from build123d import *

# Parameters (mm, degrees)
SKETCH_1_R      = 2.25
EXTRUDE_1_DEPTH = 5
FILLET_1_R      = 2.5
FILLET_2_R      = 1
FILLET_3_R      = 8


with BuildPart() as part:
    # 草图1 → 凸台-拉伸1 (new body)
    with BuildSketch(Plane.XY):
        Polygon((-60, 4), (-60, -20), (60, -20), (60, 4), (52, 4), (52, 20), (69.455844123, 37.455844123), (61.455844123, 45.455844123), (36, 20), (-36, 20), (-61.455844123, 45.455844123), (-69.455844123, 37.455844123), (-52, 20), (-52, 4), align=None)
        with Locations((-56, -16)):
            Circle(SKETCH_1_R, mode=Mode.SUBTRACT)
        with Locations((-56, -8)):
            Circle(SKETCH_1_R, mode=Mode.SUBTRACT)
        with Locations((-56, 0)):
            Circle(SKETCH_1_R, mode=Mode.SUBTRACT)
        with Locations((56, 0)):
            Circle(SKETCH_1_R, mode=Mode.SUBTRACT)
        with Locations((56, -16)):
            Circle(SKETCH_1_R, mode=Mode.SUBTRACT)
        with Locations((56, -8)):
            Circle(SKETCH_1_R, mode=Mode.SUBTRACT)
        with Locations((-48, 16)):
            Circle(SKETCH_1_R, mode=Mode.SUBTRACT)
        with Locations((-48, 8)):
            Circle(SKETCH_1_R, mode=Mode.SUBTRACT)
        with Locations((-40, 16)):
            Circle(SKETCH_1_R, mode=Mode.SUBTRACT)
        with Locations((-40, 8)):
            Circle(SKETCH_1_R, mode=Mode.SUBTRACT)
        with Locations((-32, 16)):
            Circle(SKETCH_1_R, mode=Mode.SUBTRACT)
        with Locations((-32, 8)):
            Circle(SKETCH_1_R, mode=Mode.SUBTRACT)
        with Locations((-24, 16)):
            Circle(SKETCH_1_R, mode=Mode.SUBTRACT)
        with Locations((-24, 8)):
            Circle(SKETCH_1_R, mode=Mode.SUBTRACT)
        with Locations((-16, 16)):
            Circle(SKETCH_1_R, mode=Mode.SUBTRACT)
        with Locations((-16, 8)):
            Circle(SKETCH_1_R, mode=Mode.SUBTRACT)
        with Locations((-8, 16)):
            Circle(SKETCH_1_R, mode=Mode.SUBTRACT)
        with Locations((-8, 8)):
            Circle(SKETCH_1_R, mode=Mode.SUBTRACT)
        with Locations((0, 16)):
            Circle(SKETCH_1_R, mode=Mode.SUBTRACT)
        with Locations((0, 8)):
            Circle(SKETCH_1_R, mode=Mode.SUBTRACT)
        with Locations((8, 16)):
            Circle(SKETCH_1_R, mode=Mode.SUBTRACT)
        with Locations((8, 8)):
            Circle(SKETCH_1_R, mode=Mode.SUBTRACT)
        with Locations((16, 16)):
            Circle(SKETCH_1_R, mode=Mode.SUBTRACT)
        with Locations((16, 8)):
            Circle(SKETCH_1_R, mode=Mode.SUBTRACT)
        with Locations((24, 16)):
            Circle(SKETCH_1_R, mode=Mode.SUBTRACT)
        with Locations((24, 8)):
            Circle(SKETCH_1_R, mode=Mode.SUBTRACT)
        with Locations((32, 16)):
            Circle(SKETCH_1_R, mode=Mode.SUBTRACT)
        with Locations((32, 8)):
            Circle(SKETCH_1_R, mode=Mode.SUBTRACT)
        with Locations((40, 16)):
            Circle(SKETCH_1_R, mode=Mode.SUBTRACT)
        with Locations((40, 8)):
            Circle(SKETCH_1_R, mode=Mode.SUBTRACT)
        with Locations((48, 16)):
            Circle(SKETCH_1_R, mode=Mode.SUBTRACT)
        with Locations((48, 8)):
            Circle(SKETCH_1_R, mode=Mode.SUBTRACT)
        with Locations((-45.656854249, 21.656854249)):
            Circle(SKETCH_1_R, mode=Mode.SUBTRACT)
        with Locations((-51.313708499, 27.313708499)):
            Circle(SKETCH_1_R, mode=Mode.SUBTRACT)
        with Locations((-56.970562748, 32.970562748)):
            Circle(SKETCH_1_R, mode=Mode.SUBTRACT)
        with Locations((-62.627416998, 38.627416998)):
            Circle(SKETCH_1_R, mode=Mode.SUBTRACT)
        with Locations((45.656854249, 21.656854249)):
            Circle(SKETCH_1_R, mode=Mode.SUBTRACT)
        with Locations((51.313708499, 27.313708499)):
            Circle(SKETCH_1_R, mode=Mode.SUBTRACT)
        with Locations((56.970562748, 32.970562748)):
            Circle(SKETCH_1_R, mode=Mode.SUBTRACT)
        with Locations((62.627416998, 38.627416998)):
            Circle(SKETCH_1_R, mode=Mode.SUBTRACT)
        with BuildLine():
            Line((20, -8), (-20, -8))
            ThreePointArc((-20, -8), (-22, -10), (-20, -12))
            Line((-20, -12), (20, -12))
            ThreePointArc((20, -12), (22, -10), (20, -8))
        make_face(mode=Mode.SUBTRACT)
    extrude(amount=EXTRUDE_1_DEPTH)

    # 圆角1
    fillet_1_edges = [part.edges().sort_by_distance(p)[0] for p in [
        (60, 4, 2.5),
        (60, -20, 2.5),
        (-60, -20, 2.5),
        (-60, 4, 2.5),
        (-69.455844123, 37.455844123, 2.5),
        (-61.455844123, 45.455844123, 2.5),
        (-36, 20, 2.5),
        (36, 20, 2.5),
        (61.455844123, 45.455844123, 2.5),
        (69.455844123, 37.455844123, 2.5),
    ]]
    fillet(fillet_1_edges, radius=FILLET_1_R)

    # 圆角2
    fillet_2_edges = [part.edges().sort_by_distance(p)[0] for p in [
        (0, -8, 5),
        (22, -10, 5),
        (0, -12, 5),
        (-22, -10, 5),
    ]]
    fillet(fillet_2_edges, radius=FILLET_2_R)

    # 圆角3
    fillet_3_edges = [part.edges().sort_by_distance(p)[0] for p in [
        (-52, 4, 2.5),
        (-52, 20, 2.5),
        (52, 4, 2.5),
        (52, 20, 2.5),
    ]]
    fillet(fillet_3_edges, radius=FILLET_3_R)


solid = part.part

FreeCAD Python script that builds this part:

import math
import FreeCAD as App
import Part
import Sketcher
from FreeCAD import Vector


def edges_at(feature, points):
    """Names of the edges that pass closest to the given points."""
    edges = feature.Shape.Edges
    near = lambda p: min(range(len(edges)), key=lambda i: edges[i].distToShape(Part.Vertex(*p))[0])
    return sorted({f"Edge{near(p) + 1}" for p in points})


def add_polygon(sketch, points):
    """Adds a closed chain of lines whose ends are joined by coincident constraints."""
    first, n = sketch.GeometryCount, len(points)
    for a, b in zip(points, points[1:] + points[:1]):
        sketch.addGeometry(Part.LineSegment(App.Vector(*a, 0), App.Vector(*b, 0)), False)
    for i in range(n):
        sketch.addConstraint(Sketcher.Constraint("Coincident", first + i, 2, first + (i + 1) % n, 1))

doc = App.newDocument("Part")
params = doc.addObject("Spreadsheet::Sheet", "Params")
for row, (alias, value) in enumerate([
    ("sketch1_radius", "2 mm"),
    ("sketch1_diameter", "4.5 mm"),
    ("sketch1_width", "120 mm"),
    ("sketch1_width2", "8 mm"),
    ("sketch1_width3", "72 mm"),
    ("pad1_length", "5 mm"),
    ("fillet_radius", "2.5 mm"),
    ("fillet2_radius", "1 mm"),
    ("fillet3_radius", "8 mm"),
], start=1):
    params.set(f"A{row}", alias)
    params.set(f"B{row}", "=" + value)
    params.setAlias(f"B{row}", alias)

body = doc.addObject("PartDesign::Body", "Body")

sketch1 = doc.addObject("Sketcher::SketchObject", "Sketch")
body.addObject(sketch1)
sketch1.AttachmentSupport = (doc.XY_Plane, [""])
sketch1.MapMode = "FlatFace"
add_polygon(sketch1, [(-60, 4), (-60, -20), (60, -20), (60, 4), (52, 4), (52, 20), (69.5, 37.5), (61.5, 45.5), (36, 20), (-36, 20), (-61.5, 45.5), (-69.5, 37.5), (-52, 20), (-52, 4)])
sketch1.addGeometry(Part.Circle(Vector(-56, -16, 0), Vector(0, 0, 1), 2.2), False)
sketch1.addGeometry(Part.Circle(Vector(-56, -8, 0), Vector(0, 0, 1), 2.2), False)
sketch1.addGeometry(Part.Circle(Vector(-56, 0, 0), Vector(0, 0, 1), 2.2), False)
sketch1.addGeometry(Part.Circle(Vector(-48, 8, 0), Vector(0, 0, 1), 2.2), False)
sketch1.addGeometry(Part.Circle(Vector(-40, 8, 0), Vector(0, 0, 1), 2.2), False)
sketch1.addGeometry(Part.Circle(Vector(-32, 8, 0), Vector(0, 0, 1), 2.2), False)
sketch1.addGeometry(Part.Circle(Vector(-24, 8, 0), Vector(0, 0, 1), 2.2), False)
sketch1.addGeometry(Part.Circle(Vector(-16, 8, 0), Vector(0, 0, 1), 2.2), False)
sketch1.addGeometry(Part.Circle(Vector(-8, 8, 0), Vector(0, 0, 1), 2.2), False)
sketch1.addGeometry(Part.LineSegment(Vector(-20, -8, 0), Vector(20, -8, 0)), False)
sketch1.addGeometry(Part.ArcOfCircle(Part.Circle(Vector(20, -10, 0), Vector(0, 0, 1), 2), math.radians(-90), math.radians(90)), False)
sketch1.addGeometry(Part.LineSegment(Vector(20, -12, 0), Vector(-20, -12, 0)), False)
sketch1.addGeometry(Part.ArcOfCircle(Part.Circle(Vector(-20, -10, 0), Vector(0, 0, 1), 2), math.radians(90), math.radians(270)), False)
sketch1.addGeometry(Part.Circle(Vector(56, -16, 0), Vector(0, 0, 1), 2.2), False)
sketch1.addGeometry(Part.Circle(Vector(56, -8, 0), Vector(0, 0, 1), 2.2), False)
sketch1.addGeometry(Part.Circle(Vector(0, 8, 0), Vector(0, 0, 1), 2.2), False)
sketch1.addGeometry(Part.Circle(Vector(8, 8, 0), Vector(0, 0, 1), 2.2), False)
sketch1.addGeometry(Part.Circle(Vector(16, 8, 0), Vector(0, 0, 1), 2.2), False)
sketch1.addGeometry(Part.Circle(Vector(24, 8, 0), Vector(0, 0, 1), 2.2), False)
sketch1.addGeometry(Part.Circle(Vector(32, 8, 0), Vector(0, 0, 1), 2.2), False)
sketch1.addGeometry(Part.Circle(Vector(56, 0, 0), Vector(0, 0, 1), 2.2), False)
sketch1.addGeometry(Part.Circle(Vector(40, 8, 0), Vector(0, 0, 1), 2.2), False)
sketch1.addGeometry(Part.Circle(Vector(48, 8, 0), Vector(0, 0, 1), 2.2), False)
sketch1.addGeometry(Part.Circle(Vector(-48, 16, 0), Vector(0, 0, 1), 2.2), False)
sketch1.addGeometry(Part.Circle(Vector(-40, 16, 0), Vector(0, 0, 1), 2.2), False)
sketch1.addGeometry(Part.Circle(Vector(-45.7, 21.7, 0), Vector(0, 0, 1), 2.2), False)
sketch1.addGeometry(Part.Circle(Vector(-32, 16, 0), Vector(0, 0, 1), 2.2), False)
sketch1.addGeometry(Part.Circle(Vector(-24, 16, 0), Vector(0, 0, 1), 2.2), False)
sketch1.addGeometry(Part.Circle(Vector(-16, 16, 0), Vector(0, 0, 1), 2.2), False)
sketch1.addGeometry(Part.Circle(Vector(-8, 16, 0), Vector(0, 0, 1), 2.2), False)
sketch1.addGeometry(Part.Circle(Vector(-51.3, 27.3, 0), Vector(0, 0, 1), 2.2), False)
sketch1.addGeometry(Part.Circle(Vector(-57, 33, 0), Vector(0, 0, 1), 2.2), False)
sketch1.addGeometry(Part.Circle(Vector(-62.6, 38.6, 0), Vector(0, 0, 1), 2.2), False)
sketch1.addGeometry(Part.Circle(Vector(0, 16, 0), Vector(0, 0, 1), 2.2), False)
sketch1.addGeometry(Part.Circle(Vector(8, 16, 0), Vector(0, 0, 1), 2.2), False)
sketch1.addGeometry(Part.Circle(Vector(16, 16, 0), Vector(0, 0, 1), 2.2), False)
sketch1.addGeometry(Part.Circle(Vector(24, 16, 0), Vector(0, 0, 1), 2.2), False)
sketch1.addGeometry(Part.Circle(Vector(32, 16, 0), Vector(0, 0, 1), 2.2), False)
sketch1.addGeometry(Part.Circle(Vector(40, 16, 0), Vector(0, 0, 1), 2.2), False)
sketch1.addGeometry(Part.Circle(Vector(48, 16, 0), Vector(0, 0, 1), 2.2), False)
sketch1.addGeometry(Part.Circle(Vector(45.7, 21.7, 0), Vector(0, 0, 1), 2.2), False)
sketch1.addGeometry(Part.Circle(Vector(51.3, 27.3, 0), Vector(0, 0, 1), 2.2), False)
sketch1.addGeometry(Part.Circle(Vector(57, 33, 0), Vector(0, 0, 1), 2.2), False)
sketch1.addGeometry(Part.Circle(Vector(62.6, 38.6, 0), Vector(0, 0, 1), 2.2), False)
sketch1.addConstraint([
    Sketcher.Constraint("Tangent", 23, 2, 24, 2),
    Sketcher.Constraint("Tangent", 24, 1, 25, 1),
    Sketcher.Constraint("Tangent", 25, 2, 26, 2),
    Sketcher.Constraint("Tangent", 26, 1, 23, 1),
    Sketcher.Constraint("Vertical", 0),
    Sketcher.Constraint("Horizontal", 1),
    Sketcher.Constraint("Vertical", 2),
    Sketcher.Constraint("Horizontal", 3),
    Sketcher.Constraint("Vertical", 4),
    Sketcher.Constraint("Horizontal", 8),
    Sketcher.Constraint("Vertical", 12),
    Sketcher.Constraint("Horizontal", 13),
    Sketcher.Constraint("Horizontal", 23),
    Sketcher.Constraint("Horizontal", 25),
    Sketcher.Constraint("Equal", 14, 15),
    Sketcher.Constraint("Equal", 15, 16),
    Sketcher.Constraint("Equal", 16, 17),
    Sketcher.Constraint("Equal", 17, 18),
    Sketcher.Constraint("Equal", 18, 19),
    Sketcher.Constraint("Equal", 19, 20),
    Sketcher.Constraint("Equal", 20, 21),
    Sketcher.Constraint("Equal", 21, 22),
    Sketcher.Constraint("Equal", 22, 27),
    Sketcher.Constraint("Equal", 27, 28),
    Sketcher.Constraint("Equal", 28, 29),
    Sketcher.Constraint("Equal", 29, 30),
    Sketcher.Constraint("Equal", 30, 31),
    Sketcher.Constraint("Equal", 31, 32),
    Sketcher.Constraint("Equal", 32, 33),
    Sketcher.Constraint("Equal", 33, 34),
    Sketcher.Constraint("Equal", 34, 35),
    Sketcher.Constraint("Equal", 35, 36),
    Sketcher.Constraint("Equal", 36, 37),
    Sketcher.Constraint("Equal", 37, 38),
    Sketcher.Constraint("Equal", 38, 39),
    Sketcher.Constraint("Equal", 39, 40),
    Sketcher.Constraint("Equal", 40, 41),
    Sketcher.Constraint("Equal", 41, 42),
    Sketcher.Constraint("Equal", 42, 43),
    Sketcher.Constraint("Equal", 43, 44),
    Sketcher.Constraint("Equal", 44, 45),
    Sketcher.Constraint("Equal", 45, 46),
    Sketcher.Constraint("Equal", 46, 47),
    Sketcher.Constraint("Equal", 47, 48),
    Sketcher.Constraint("Equal", 48, 49),
    Sketcher.Constraint("Equal", 49, 50),
    Sketcher.Constraint("Equal", 50, 51),
    Sketcher.Constraint("Equal", 51, 52),
    Sketcher.Constraint("Equal", 52, 53),
    Sketcher.Constraint("Equal", 53, 54),
    Sketcher.Constraint("Equal", 54, 55),
    Sketcher.Constraint("Equal", 55, 56),
    Sketcher.Constraint("Equal", 56, 57),
    Sketcher.Constraint("Symmetric", 16, 3, 34, 3, -1, 1),
    Sketcher.Constraint("Symmetric", 14, 3, 27, 3, -2),
    Sketcher.Constraint("Symmetric", 15, 3, 28, 3, -2),
    Sketcher.Constraint("Symmetric", 22, 3, 30, 3, -2),
    Sketcher.Constraint("Symmetric", 21, 3, 31, 3, -2),
    Sketcher.Constraint("Symmetric", 20, 3, 32, 3, -2),
    Sketcher.Constraint("Symmetric", 19, 3, 33, 3, -2),
    Sketcher.Constraint("Symmetric", 18, 3, 35, 3, -2),
    Sketcher.Constraint("Symmetric", 17, 3, 36, 3, -2),
    Sketcher.Constraint("Symmetric", 43, 3, 48, 3, -2),
    Sketcher.Constraint("Symmetric", 42, 3, 49, 3, -2),
    Sketcher.Constraint("Symmetric", 41, 3, 50, 3, -2),
    Sketcher.Constraint("Symmetric", 40, 3, 51, 3, -2),
    Sketcher.Constraint("Symmetric", 38, 3, 52, 3, -2),
    Sketcher.Constraint("Symmetric", 37, 3, 53, 3, -2),
    Sketcher.Constraint("Symmetric", 39, 3, 54, 3, -2),
    Sketcher.Constraint("Symmetric", 44, 3, 55, 3, -2),
    Sketcher.Constraint("Symmetric", 45, 3, 56, 3, -2),
    Sketcher.Constraint("Symmetric", 46, 3, 57, 3, -2),
    Sketcher.Constraint("Symmetric", 6, 2, 9, 2, -2),
    Sketcher.Constraint("Symmetric", 5, 2, 10, 2, -2),
    Sketcher.Constraint("Symmetric", 4, 2, 11, 2, -2),
    Sketcher.Constraint("Symmetric", 2, 2, 13, 2, -2),
    Sketcher.Constraint("PointOnObject", 16, 3, -1),
    Sketcher.Constraint("PointOnObject", 29, 3, -2),
    Sketcher.Constraint("PointOnObject", 47, 3, -2),
    Sketcher.Constraint("Perpendicular", 5, 6),
    Sketcher.Constraint("Perpendicular", 6, 7),
    Sketcher.Constraint("Perpendicular", 7, 9),
    Sketcher.Constraint("Perpendicular", 9, 10),
    Sketcher.Constraint("Horizontal", 17, 3, 18, 3),
    Sketcher.Constraint("Horizontal", 18, 3, 19, 3),
    Sketcher.Constraint("Horizontal", 19, 3, 20, 3),
    Sketcher.Constraint("Horizontal", 20, 3, 21, 3),
    Sketcher.Constraint("Horizontal", 21, 3, 22, 3),
    Sketcher.Constraint("Horizontal", 22, 3, 29, 3),
    Sketcher.Constraint("Horizontal", 37, 3, 38, 3),
    Sketcher.Constraint("Horizontal", 38, 3, 40, 3),
    Sketcher.Constraint("Horizontal", 40, 3, 41, 3),
    Sketcher.Constraint("Horizontal", 41, 3, 42, 3),
    Sketcher.Constraint("Horizontal", 42, 3, 43, 3),
    Sketcher.Constraint("Horizontal", 43, 3, 47, 3),
    Sketcher.Constraint("Horizontal", 4, 2, 7, 2),
    Sketcher.Constraint("Horizontal", 28, 3, 23, 2),
    Sketcher.Constraint("Vertical", 14, 3, 15, 3),
    Sketcher.Constraint("Vertical", 15, 3, 16, 3),
    Sketcher.Constraint("Vertical", 17, 3, 37, 3),
    Sketcher.Constraint("Vertical", 18, 3, 38, 3),
    Sketcher.Constraint("Vertical", 19, 3, 40, 3),
    Sketcher.Constraint("Vertical", 20, 3, 41, 3),
    Sketcher.Constraint("Vertical", 21, 3, 42, 3),
    Sketcher.Constraint("Vertical", 22, 3, 43, 3),
    Sketcher.Constraint("Radius", 24, 2.0),
    Sketcher.Constraint("Diameter", 14, 4.5),
    Sketcher.Constraint("DistanceX", 1, 1, 1, 2, 120.0),
    Sketcher.Constraint("DistanceX", 3, 2, 3, 1, 8.0),
    Sketcher.Constraint("DistanceX", 8, 2, 8, 1, 72.0),
    Sketcher.Constraint("DistanceX", 23, 1, 23, 2, 40.0),
    Sketcher.Constraint("DistanceY", 0, 2, 0, 1, 24.0),
    Sketcher.Constraint("DistanceY", 4, 1, 4, 2, 16.0),
    Sketcher.Constraint("Distance", 7, 36.0),
    Sketcher.Constraint("DistanceX", 14, 3, -1, 1, 56.0),
    Sketcher.Constraint("DistanceY", 14, 3, -1, 1, 16.0),
    Sketcher.Constraint("DistanceY", 15, 3, -1, 1, 8.0),
    Sketcher.Constraint("DistanceX", 17, 3, -1, 1, 48.0),
    Sketcher.Constraint("DistanceY", -1, 1, 17, 3, 8.0),
    Sketcher.Constraint("DistanceX", 18, 3, -1, 1, 40.0),
    Sketcher.Constraint("DistanceX", 19, 3, -1, 1, 32.0),
    Sketcher.Constraint("DistanceX", 20, 3, -1, 1, 24.0),
    Sketcher.Constraint("DistanceX", 21, 3, -1, 1, 16.0),
    Sketcher.Constraint("DistanceX", 22, 3, -1, 1, 8.0),
    Sketcher.Constraint("DistanceX", -1, 1, 24, 3, 20.0),
    Sketcher.Constraint("DistanceY", -1, 1, 37, 3, 16.0),
    Sketcher.Constraint("DistanceY", 0, 2, -1, 1, 20.0),
    Sketcher.Constraint("DistanceX", 44, 3, -1, 1, 51.313708),
    Sketcher.Constraint("DistanceY", -1, 1, 44, 3, 27.313708),
    Sketcher.Constraint("DistanceX", 45, 3, 39, 3, 11.313708),
    Sketcher.Constraint("DistanceY", 39, 3, 45, 3, 11.313708),
    Sketcher.Constraint("DistanceX", 46, 3, 44, 3, 11.313708),
    Sketcher.Constraint("DistanceY", 44, 3, 46, 3, 11.313708),
    Sketcher.Constraint("DistanceX", 56, 3, 5, 2, 12.485281),
    Sketcher.Constraint("DistanceY", 56, 3, 5, 2, 4.485281),
])
sketch1.setExpression("Constraints[119]", "Params.sketch1_radius")
sketch1.setExpression("Constraints[120]", "Params.sketch1_diameter")
sketch1.setExpression("Constraints[121]", "Params.sketch1_width")
sketch1.setExpression("Constraints[122]", "Params.sketch1_width2")
sketch1.setExpression("Constraints[123]", "Params.sketch1_width3")
pad1 = doc.addObject("PartDesign::Pad", "Pad")
body.addObject(pad1)
pad1.Profile = sketch1
pad1.setExpression("Length", "Params.pad1_length")
doc.recompute()

fillet = doc.addObject("PartDesign::Fillet", "Fillet")
body.addObject(fillet)
fillet.Base = (pad1, edges_at(pad1, [
    (60, 4, 2.5),
    (60, -20, 2.5),
    (-60, -20, 2.5),
    (-60, 4, 2.5),
    (-69.456, 37.456, 2.5),
    (-61.456, 45.456, 2.5),
    (-36, 20, 2.5),
    (36, 20, 2.5),
    (61.456, 45.456, 2.5),
    (69.456, 37.456, 2.5),
]))
fillet.setExpression("Radius", "Params.fillet_radius")
doc.recompute()

fillet2 = doc.addObject("PartDesign::Fillet", "Fillet001")
body.addObject(fillet2)
fillet2.Base = (fillet, edges_at(fillet, [
    (0, -8, 5),
    (22, -10, 5),
    (0, -12, 5),
    (-22, -10, 5),
]))
fillet2.setExpression("Radius", "Params.fillet2_radius")
doc.recompute()

fillet3 = doc.addObject("PartDesign::Fillet", "Fillet002")
body.addObject(fillet3)
fillet3.Base = (fillet2, edges_at(fillet2, [
    (-52, 4, 2.5),
    (-52, 20, 2.5),
    (52, 4, 2.5),
    (52, 20, 2.5),
]))
fillet3.setExpression("Radius", "Params.fillet3_radius")

doc.recompute()
